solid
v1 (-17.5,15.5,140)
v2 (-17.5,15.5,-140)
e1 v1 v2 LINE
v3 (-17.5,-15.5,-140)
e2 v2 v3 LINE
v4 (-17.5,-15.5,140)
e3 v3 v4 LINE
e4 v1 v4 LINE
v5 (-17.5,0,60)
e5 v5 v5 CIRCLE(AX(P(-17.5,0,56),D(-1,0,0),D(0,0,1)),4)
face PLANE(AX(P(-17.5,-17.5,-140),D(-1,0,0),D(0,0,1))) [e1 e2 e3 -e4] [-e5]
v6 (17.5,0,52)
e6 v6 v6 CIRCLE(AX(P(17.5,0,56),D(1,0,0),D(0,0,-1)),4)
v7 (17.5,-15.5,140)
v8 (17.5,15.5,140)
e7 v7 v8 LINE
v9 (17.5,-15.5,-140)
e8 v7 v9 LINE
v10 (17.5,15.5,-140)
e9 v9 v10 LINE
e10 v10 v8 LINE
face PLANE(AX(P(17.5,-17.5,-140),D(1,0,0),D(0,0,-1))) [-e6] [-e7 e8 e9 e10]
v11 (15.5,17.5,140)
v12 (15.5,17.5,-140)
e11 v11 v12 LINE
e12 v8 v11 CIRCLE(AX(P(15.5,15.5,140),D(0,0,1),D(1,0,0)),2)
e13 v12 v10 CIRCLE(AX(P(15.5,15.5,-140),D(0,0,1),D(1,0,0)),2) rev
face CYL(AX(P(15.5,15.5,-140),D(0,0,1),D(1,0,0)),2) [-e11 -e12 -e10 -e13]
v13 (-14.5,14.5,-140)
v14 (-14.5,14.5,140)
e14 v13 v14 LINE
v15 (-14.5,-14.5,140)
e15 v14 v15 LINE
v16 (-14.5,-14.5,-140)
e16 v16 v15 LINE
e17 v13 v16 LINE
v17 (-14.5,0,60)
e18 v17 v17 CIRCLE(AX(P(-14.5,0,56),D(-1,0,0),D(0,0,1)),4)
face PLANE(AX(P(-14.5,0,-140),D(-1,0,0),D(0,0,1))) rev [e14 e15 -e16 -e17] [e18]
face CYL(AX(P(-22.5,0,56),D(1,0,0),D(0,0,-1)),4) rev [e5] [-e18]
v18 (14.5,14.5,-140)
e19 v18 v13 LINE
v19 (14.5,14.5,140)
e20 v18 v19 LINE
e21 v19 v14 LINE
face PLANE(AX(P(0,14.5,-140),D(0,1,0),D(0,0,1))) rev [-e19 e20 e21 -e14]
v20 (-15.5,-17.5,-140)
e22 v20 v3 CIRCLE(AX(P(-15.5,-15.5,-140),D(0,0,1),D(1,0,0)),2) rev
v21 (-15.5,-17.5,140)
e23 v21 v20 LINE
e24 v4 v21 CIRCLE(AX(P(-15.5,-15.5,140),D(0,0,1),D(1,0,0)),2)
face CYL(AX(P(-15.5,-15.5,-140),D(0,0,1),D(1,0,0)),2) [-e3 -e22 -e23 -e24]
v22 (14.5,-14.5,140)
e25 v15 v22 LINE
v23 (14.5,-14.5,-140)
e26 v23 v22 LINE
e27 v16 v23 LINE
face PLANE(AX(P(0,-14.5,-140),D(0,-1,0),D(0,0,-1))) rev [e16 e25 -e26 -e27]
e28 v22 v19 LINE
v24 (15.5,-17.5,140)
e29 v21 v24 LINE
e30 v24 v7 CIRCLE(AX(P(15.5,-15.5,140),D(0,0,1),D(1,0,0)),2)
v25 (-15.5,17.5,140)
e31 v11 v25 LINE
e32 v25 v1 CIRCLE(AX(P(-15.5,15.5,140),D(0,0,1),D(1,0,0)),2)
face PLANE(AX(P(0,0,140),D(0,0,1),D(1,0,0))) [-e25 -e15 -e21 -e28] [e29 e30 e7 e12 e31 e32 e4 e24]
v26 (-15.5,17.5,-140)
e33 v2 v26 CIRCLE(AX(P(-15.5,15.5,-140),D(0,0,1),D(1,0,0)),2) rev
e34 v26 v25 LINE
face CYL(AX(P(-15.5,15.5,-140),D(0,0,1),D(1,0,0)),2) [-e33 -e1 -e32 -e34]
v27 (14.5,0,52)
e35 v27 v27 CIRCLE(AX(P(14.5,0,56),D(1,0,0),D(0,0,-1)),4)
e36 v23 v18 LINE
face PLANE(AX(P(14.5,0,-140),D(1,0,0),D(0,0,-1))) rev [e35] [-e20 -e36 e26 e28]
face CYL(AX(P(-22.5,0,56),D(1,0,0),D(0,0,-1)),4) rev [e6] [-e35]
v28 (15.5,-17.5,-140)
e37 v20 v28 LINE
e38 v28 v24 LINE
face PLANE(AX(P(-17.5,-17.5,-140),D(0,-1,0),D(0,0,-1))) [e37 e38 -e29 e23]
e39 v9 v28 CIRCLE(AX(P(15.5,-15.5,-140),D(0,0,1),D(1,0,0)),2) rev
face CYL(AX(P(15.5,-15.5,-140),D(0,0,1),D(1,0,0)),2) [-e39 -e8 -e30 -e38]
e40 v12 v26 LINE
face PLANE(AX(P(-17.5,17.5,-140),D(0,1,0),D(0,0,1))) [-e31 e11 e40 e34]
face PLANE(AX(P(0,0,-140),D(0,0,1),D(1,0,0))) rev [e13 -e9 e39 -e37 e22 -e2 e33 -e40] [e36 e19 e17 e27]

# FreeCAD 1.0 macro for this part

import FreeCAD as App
import Part
import Sketcher

V = App.Vector
Q = App.Units.Quantity


def edges_at(feature, points):
    """Names of the edges that pass closest to the given points."""
    edges = feature.Shape.Edges
    near = lambda p: min(range(len(edges)), key=lambda i: edges[i].distToShape(Part.Vertex(*p))[0])
    return sorted({f"Edge{near(p) + 1}" for p in points})


def add_polygon(sketch, points):
    """Adds a closed chain of lines whose ends are joined by coincident constraints."""
    first, n = sketch.GeometryCount, len(points)
    for a, b in zip(points, points[1:] + points[:1]):
        sketch.addGeometry(Part.LineSegment(App.Vector(*a, 0), App.Vector(*b, 0)), False)
    for i in range(n):
        sketch.addConstraint(Sketcher.Constraint("Coincident", first + i, 2, first + (i + 1) % n, 1))

doc = App.newDocument("Part")
params = doc.addObject("Spreadsheet::Sheet", "Params")
for row, (alias, value) in enumerate([
    ("sketch1_width", "35 mm"),
    ("sketch1_width2", "29 mm"),
    ("pad1_length", "140 mm"),
    ("pad1_length2", "140 mm"),
    ("fillet_radius", "2 mm"),
    ("sketch2_diameter", "8 mm"),
    ("pocket1_length", "40 mm"),
], start=1):
    params.set(f"A{row}", alias)
    params.set(f"B{row}", "=" + value)
    params.setAlias(f"B{row}", alias)

body = doc.addObject("PartDesign::Body", "Body")

sketch1 = body.newObject("Sketcher::SketchObject", "Sketch")
sketch1.AttachmentSupport = (doc.getObject("XY_Plane"), [""])
sketch1.MapMode = "FlatFace"
add_polygon(sketch1, [(-17.5, 17.5), (-17.5, -17.5), (17.5, -17.5), (17.5, 17.5)])
add_polygon(sketch1, [(14.5, -14.5), (-14.5, -14.5), (-14.5, 14.5), (14.5, 14.5)])
sketch1.addConstraint(Sketcher.Constraint("Vertical", 0))
sketch1.addConstraint(Sketcher.Constraint("Horizontal", 1))
sketch1.addConstraint(Sketcher.Constraint("Vertical", 2))
sketch1.addConstraint(Sketcher.Constraint("Horizontal", 3))
sketch1.addConstraint(Sketcher.Constraint("Horizontal", 4))
sketch1.addConstraint(Sketcher.Constraint("Vertical", 5))
sketch1.addConstraint(Sketcher.Constraint("Horizontal", 6))
sketch1.addConstraint(Sketcher.Constraint("Vertical", 7))
sketch1.addConstraint(Sketcher.Constraint("Symmetric", 0, 2, 2, 2, -1, 1))
sketch1.addConstraint(Sketcher.Constraint("Symmetric", 4, 2, 6, 2, -1, 1))
sketch1.addConstraint(Sketcher.Constraint("Equal", 3, 0))
sketch1.addConstraint(Sketcher.Constraint("Equal", 6, 5))
sketch1.addConstraint(Sketcher.Constraint("DistanceX", 1, 1, 1, 2, Q("35 mm")))
sketch1.addConstraint(Sketcher.Constraint("DistanceX", 4, 2, 4, 1, Q("29 mm")))
sketch1.setExpression("Constraints[20]", "Params.sketch1_width")
sketch1.setExpression("Constraints[21]", "Params.sketch1_width2")
pad1 = body.newObject("PartDesign::Pad", "Pad")
pad1.Profile = sketch1
pad1.Type = "TwoLengths"
pad1.setExpression("Length", "Params.pad1_length")
pad1.setExpression("Length2", "Params.pad1_length2")
doc.recompute()

fillet = body.newObject("PartDesign::Fillet", "Fillet")
fillet.Base = (pad1, edges_at(pad1, [
    (17.5, -17.5, 0),
    (-17.5, -17.5, 0),
    (-17.5, 17.5, 0),
    (17.5, 17.5, 0),
]))
fillet.setExpression("Radius", "Params.fillet_radius")

sketch2 = body.newObject("Sketcher::SketchObject", "Sketch001")
sketch2.AttachmentSupport = (doc.getObject("YZ_Plane"), [""])
sketch2.MapMode = "FlatFace"
sketch2.AttachmentOffset = App.Placement(V(0, 0, 17.5), App.Rotation())
sketch2.addGeometry(Part.Circle(V(0, 56, 0), V(0, 0, 1), 4), False)
sketch2.addConstraint(Sketcher.Constraint("PointOnObject", 0, 3, -2))
sketch2.addConstraint(Sketcher.Constraint("Diameter", 0, Q("8 mm")))
sketch2.addConstraint(Sketcher.Constraint("DistanceY", -1, 1, 0, 3, Q("56 mm")))
sketch2.setExpression("Constraints[1]", "Params.sketch2_diameter")
pocket1 = body.newObject("PartDesign::Pocket", "Pocket")
pocket1.Profile = sketch2
pocket1.setExpression("Length", "Params.pocket1_length")

doc.recompute()
